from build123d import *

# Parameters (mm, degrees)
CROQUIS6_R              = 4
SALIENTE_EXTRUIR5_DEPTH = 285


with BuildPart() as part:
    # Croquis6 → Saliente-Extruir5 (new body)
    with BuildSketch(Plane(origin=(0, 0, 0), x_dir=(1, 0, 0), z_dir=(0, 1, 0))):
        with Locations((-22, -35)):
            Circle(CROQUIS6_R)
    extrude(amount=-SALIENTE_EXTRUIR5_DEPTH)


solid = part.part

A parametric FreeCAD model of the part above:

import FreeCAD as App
import Part
import Sketcher
from FreeCAD import Vector
Q = App.Units.Quantity

doc = App.newDocument("Part")
body = doc.addObject("PartDesign::Body", "Body")

sketch1 = doc.addObject("Sketcher::SketchObject", "Sketch")
body.addObject(sketch1)
sketch1.AttachmentSupport = (doc.XZ_Plane, [""])
sketch1.MapMode = "FlatFace"
sketch1.addGeometry(Part.Circle(Vector(-22, 35, 0), Vector(0, 0, 1), 4), False)
sketch1.addConstraint([
    Sketcher.Constraint("Diameter", 0, Q("8 mm")),
    Sketcher.Constraint("DistanceX", 0, 3, -1, 1, Q("22 mm")),
    Sketcher.Constraint("DistanceY", -1, 1, 0, 3, Q("35 mm")),
])
pad1 = doc.addObject("PartDesign::Pad", "Pad")
body.addObject(pad1)
pad1.Profile = sketch1
pad1.Length = 285

doc.recompute()
